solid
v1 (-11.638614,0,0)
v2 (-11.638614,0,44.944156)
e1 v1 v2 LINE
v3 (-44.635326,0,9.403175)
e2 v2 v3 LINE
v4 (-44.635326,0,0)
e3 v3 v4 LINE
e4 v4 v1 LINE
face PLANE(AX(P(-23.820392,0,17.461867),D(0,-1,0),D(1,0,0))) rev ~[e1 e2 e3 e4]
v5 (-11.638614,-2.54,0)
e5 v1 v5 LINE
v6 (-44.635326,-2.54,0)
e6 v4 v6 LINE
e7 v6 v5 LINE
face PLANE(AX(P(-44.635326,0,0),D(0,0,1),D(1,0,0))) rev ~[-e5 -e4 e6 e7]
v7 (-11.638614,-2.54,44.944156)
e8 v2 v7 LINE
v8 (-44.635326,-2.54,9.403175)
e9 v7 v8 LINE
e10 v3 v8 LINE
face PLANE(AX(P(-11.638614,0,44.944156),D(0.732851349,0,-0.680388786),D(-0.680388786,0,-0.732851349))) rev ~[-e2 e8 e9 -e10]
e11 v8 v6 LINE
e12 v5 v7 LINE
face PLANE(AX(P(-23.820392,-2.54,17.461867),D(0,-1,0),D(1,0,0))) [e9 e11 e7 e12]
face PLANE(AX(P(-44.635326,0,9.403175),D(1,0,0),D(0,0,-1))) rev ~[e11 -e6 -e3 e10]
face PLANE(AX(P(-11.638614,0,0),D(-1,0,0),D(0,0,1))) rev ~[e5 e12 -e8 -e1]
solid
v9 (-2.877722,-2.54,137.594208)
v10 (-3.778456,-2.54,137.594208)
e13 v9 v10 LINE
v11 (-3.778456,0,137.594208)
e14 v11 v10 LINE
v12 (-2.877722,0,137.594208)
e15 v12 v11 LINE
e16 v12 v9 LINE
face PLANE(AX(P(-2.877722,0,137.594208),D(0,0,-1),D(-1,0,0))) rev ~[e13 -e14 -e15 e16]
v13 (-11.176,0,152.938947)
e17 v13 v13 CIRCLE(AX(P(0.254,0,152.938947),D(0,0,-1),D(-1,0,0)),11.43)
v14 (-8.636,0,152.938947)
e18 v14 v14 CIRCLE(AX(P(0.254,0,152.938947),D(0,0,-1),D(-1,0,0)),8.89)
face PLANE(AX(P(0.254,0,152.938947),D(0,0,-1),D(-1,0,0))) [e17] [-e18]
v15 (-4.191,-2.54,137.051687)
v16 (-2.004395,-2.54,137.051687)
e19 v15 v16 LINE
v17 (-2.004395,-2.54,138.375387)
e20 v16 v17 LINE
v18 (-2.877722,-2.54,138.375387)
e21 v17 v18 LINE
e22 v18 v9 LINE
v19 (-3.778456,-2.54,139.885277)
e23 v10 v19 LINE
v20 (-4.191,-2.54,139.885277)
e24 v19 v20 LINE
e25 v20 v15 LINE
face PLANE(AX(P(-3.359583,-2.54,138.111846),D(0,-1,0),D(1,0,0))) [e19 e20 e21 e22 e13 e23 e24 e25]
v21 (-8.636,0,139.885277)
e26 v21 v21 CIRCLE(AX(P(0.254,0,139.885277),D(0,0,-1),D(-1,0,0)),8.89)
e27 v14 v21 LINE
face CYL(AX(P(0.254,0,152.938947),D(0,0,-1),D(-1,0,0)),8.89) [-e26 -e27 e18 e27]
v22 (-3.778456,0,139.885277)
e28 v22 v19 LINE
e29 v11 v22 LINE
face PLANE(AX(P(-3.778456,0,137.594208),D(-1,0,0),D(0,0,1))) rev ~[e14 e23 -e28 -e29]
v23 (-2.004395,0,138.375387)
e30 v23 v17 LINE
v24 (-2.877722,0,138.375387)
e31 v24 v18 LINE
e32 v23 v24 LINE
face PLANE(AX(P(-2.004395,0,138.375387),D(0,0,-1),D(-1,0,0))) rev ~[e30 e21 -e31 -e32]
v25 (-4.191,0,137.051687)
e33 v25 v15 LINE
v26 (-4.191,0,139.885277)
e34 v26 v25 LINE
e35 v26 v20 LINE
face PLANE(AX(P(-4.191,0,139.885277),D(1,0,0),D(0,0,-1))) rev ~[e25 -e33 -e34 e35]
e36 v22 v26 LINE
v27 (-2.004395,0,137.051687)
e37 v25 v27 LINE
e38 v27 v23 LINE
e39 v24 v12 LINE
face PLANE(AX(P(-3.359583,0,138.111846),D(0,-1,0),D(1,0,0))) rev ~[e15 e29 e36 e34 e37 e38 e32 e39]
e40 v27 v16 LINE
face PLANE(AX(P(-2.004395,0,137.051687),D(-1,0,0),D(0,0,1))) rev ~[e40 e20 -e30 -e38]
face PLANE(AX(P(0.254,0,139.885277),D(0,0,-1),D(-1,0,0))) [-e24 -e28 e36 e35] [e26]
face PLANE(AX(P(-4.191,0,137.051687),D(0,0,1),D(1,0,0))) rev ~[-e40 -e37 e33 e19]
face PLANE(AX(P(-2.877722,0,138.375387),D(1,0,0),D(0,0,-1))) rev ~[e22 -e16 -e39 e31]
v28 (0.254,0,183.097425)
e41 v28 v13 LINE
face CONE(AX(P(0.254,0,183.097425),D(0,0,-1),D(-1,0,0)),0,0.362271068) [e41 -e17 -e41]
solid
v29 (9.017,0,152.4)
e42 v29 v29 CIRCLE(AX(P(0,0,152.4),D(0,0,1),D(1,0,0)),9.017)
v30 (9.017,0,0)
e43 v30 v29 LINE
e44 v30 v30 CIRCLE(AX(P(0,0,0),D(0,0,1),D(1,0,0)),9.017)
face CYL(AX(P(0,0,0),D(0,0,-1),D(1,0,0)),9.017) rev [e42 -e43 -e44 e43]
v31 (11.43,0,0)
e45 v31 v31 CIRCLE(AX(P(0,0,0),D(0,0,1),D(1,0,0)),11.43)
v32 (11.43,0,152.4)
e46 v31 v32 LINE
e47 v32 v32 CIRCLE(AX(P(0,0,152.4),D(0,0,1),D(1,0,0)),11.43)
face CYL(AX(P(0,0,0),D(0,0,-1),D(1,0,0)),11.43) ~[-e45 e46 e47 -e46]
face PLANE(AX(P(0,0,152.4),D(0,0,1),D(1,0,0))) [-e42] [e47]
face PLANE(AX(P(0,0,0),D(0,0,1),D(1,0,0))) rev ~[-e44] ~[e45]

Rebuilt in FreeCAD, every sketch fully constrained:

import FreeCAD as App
import Part
import Sketcher
from FreeCAD import Vector
Q = App.Units.Quantity

doc = App.newDocument("Part")
params = doc.addObject("Spreadsheet::Sheet", "Params")
for row, (alias, value) in enumerate([
    ("sketch1_diameter", "0.9 in"),
    ("sketch1_diameter2", "0.71 in"),
    ("pad1_length", "6 in"),
    ("pad2_length", "0.1 in"),
    ("sketch3_width", "0.1 in"),
    ("sketch3_width2", "0.35 in"),
    ("revolution_angle", "360 deg"),
    ("pad3_length", "0.1 in"),
], start=1):
    params.set(f"A{row}", alias)
    params.set(f"B{row}", "=" + value)
    params.setAlias(f"B{row}", alias)

body = doc.addObject("PartDesign::Body", "Body")

# Sketch on XY plane
sketch1 = doc.addObject("Sketcher::SketchObject", "Sketch")
body.addObject(sketch1)
sketch1.AttachmentSupport = (doc.XY_Plane, [""])
sketch1.MapMode = "FlatFace"
sketch1.addGeometry([
    Part.Circle(Vector(0, 0, 0), Vector(0, 0, 1), 11),
    Part.Circle(Vector(0, 0, 0), Vector(0, 0, 1), 9),
], False)
sketch1.addConstraint([
    Sketcher.Constraint("Coincident", 0, 3, -1, 1),
    Sketcher.Constraint("Coincident", 1, 3, -1, 1),
    Sketcher.Constraint("Diameter", 0, Q("0.9 in")),
    Sketcher.Constraint("Diameter", 1, Q("0.71 in")),
])
sketch1.setExpression("Constraints[2]", "Params.sketch1_diameter")
sketch1.setExpression("Constraints[3]", "Params.sketch1_diameter2")
pad1 = doc.addObject("PartDesign::Pad", "Pad")
body.addObject(pad1)
pad1.Profile = sketch1
pad1.setExpression("Length", "Params.pad1_length")
body2 = doc.addObject("PartDesign::Body", "Body001")

# Sketch on XZ plane
sketch2 = doc.addObject("Sketcher::SketchObject", "Sketch001")
body2.addObject(sketch2)
sketch2.AttachmentSupport = (doc.getObject("XZ_Plane001"), [""])
sketch2.MapMode = "FlatFace"
sketch2.addGeometry([
    Part.LineSegment(Vector(-45, 0, 0), Vector(-12, 0, 0)),
    Part.LineSegment(Vector(-12, 0, 0), Vector(-12, 45, 0)),
    Part.LineSegment(Vector(-12, 45, 0), Vector(-45, 9, 0)),
    Part.LineSegment(Vector(-45, 9, 0), Vector(-45, 0, 0)),
], False)
sketch2.addConstraint([
    Sketcher.Constraint("Coincident", 0, 2, 1, 1),
    Sketcher.Constraint("Coincident", 1, 2, 2, 1),
    Sketcher.Constraint("Coincident", 2, 2, 3, 1),
    Sketcher.Constraint("Coincident", 3, 2, 0, 1),
    Sketcher.Constraint("Horizontal", 0),
    Sketcher.Constraint("Vertical", 1),
    Sketcher.Constraint("Vertical", 3),
    Sketcher.Constraint("PointOnObject", 0, 2, -1),
    Sketcher.Constraint("Distance", 2, 48.496849),
    Sketcher.Constraint("DistanceX", 0, 1, 0, 2, 32.996712),
    Sketcher.Constraint("DistanceY", 1, 1, 1, 2, 44.944156),
    Sketcher.Constraint("DistanceX", 0, 2, -1, 1, 11.638614),
])
pad2 = doc.addObject("PartDesign::Pad", "Pad001")
body2.addObject(pad2)
pad2.Profile = sketch2
pad2.setExpression("Length", "Params.pad2_length")
body3 = doc.addObject("PartDesign::Body", "Body002")

# Sketch on XZ plane
sketch3 = doc.addObject("Sketcher::SketchObject", "Sketch002")
body3.addObject(sketch3)
sketch3.AttachmentSupport = (doc.getObject("XZ_Plane002"), [""])
sketch3.MapMode = "FlatFace"
sketch3.addGeometry([
    Part.LineSegment(Vector(0.3, 139.9, 0), Vector(0.3, 183.1, 0)),  # 0
    Part.LineSegment(Vector(0.3, 183.1, 0), Vector(-11.2, 152.9, 0)),  # 1
    Part.LineSegment(Vector(-11.2, 152.9, 0), Vector(-8.6, 152.9, 0)),  # 2
    Part.LineSegment(Vector(-8.6, 152.9, 0), Vector(-8.6, 139.9, 0)),  # 3
    Part.LineSegment(Vector(-8.6, 139.9, 0), Vector(0.3, 139.9, 0)),  # 4
], False)
sketch3.addGeometry(Part.LineSegment(Vector(0.3, 183.1, 0), Vector(0.3, 139.9, 0)), True)  # axis
sketch3.addConstraint([
    Sketcher.Constraint("Coincident", 0, 2, 1, 1),
    Sketcher.Constraint("Coincident", 1, 2, 2, 1),
    Sketcher.Constraint("Coincident", 2, 2, 3, 1),
    Sketcher.Constraint("Coincident", 3, 2, 4, 1),
    Sketcher.Constraint("Coincident", 4, 2, 0, 1),
    Sketcher.Constraint("Vertical", 0),
    Sketcher.Constraint("Horizontal", 2),
    Sketcher.Constraint("Vertical", 3),
    Sketcher.Constraint("Horizontal", 4),
    Sketcher.Constraint("Vertical", 5),
    Sketcher.Constraint("Coincident", 5, 1, 0, 2),
    Sketcher.Constraint("Horizontal", 3, 2, 5, 2),
    Sketcher.Constraint("DistanceX", 2, 1, 2, 2, Q("0.1 in")),
    Sketcher.Constraint("DistanceX", 4, 1, 4, 2, Q("0.35 in")),
    Sketcher.Constraint("DistanceX", -1, 1, 0, 2, Q("0.01 in")),
    Sketcher.Constraint("Distance", 1, 32.251801),
    Sketcher.Constraint("DistanceY", 3, 2, 3, 1, 13.05367),
    Sketcher.Constraint("DistanceY", -1, 1, 0, 2, 183.097425),
])
sketch3.setExpression("Constraints[12]", "Params.sketch3_width")
sketch3.setExpression("Constraints[13]", "Params.sketch3_width2")
revolution = doc.addObject("PartDesign::Revolution", "Revolution")
body3.addObject(revolution)
revolution.Profile = sketch3
revolution.ReferenceAxis = (sketch3, ["Axis0"])
revolution.setExpression("Angle", "Params.revolution_angle")

# Sketch on XZ plane
sketch4 = doc.addObject("Sketcher::SketchObject", "Sketch003")
body3.addObject(sketch4)
sketch4.AttachmentSupport = (doc.getObject("XZ_Plane002"), [""])
sketch4.MapMode = "FlatFace"
sketch4.addGeometry([
    Part.LineSegment(Vector(-3.78, 137.59, 0), Vector(-3.78, 139.89, 0)),  # 0
    Part.LineSegment(Vector(-3.78, 139.89, 0), Vector(-4.19, 139.89, 0)),  # 1
    Part.LineSegment(Vector(-4.19, 139.89, 0), Vector(-4.19, 137.05, 0)),  # 2
    Part.LineSegment(Vector(-4.19, 137.05, 0), Vector(-2, 137.05, 0)),  # 3
    Part.LineSegment(Vector(-2, 137.05, 0), Vector(-2, 138.38, 0)),  # 4
    Part.LineSegment(Vector(-2, 138.38, 0), Vector(-2.88, 138.38, 0)),  # 5
    Part.LineSegment(Vector(-2.88, 138.38, 0), Vector(-2.88, 137.59, 0)),  # 6
    Part.LineSegment(Vector(-2.88, 137.59, 0), Vector(-3.78, 137.59, 0)),  # 7
], False)
sketch4.addConstraint([
    Sketcher.Constraint("Coincident", 0, 2, 1, 1),
    Sketcher.Constraint("Coincident", 1, 2, 2, 1),
    Sketcher.Constraint("Coincident", 2, 2, 3, 1),
    Sketcher.Constraint("Coincident", 3, 2, 4, 1),
    Sketcher.Constraint("Coincident", 4, 2, 5, 1),
    Sketcher.Constraint("Coincident", 5, 2, 6, 1),
    Sketcher.Constraint("Coincident", 6, 2, 7, 1),
    Sketcher.Constraint("Coincident", 7, 2, 0, 1),
    Sketcher.Constraint("Vertical", 0),
    Sketcher.Constraint("Horizontal", 1),
    Sketcher.Constraint("Vertical", 2),
    Sketcher.Constraint("Horizontal", 3),
    Sketcher.Constraint("Vertical", 4),
    Sketcher.Constraint("Horizontal", 5),
    Sketcher.Constraint("Vertical", 6),
    Sketcher.Constraint("Horizontal", 7),
    Sketcher.Constraint("DistanceX", 1, 2, -1, 1, Q("0.165 in")),
    Sketcher.Constraint("DistanceY", 4, 1, 4, 2, 1.3237),
    Sketcher.Constraint("DistanceY", 0, 1, 0, 2, 2.291069),
    Sketcher.Constraint("DistanceY", 2, 2, 2, 1, 2.83359),
    Sketcher.Constraint("DistanceX", 1, 2, 1, 1, 0.412544),
    Sketcher.Constraint("DistanceX", 3, 1, 3, 2, 2.186605),
    Sketcher.Constraint("DistanceX", 5, 2, 5, 1, 0.873327),
    Sketcher.Constraint("DistanceY", -1, 1, 6, 2, 137.594208),
])
pad3 = doc.addObject("PartDesign::Pad", "Pad002")
body3.addObject(pad3)
pad3.Profile = sketch4
pad3.setExpression("Length", "Params.pad3_length")

doc.recompute()
